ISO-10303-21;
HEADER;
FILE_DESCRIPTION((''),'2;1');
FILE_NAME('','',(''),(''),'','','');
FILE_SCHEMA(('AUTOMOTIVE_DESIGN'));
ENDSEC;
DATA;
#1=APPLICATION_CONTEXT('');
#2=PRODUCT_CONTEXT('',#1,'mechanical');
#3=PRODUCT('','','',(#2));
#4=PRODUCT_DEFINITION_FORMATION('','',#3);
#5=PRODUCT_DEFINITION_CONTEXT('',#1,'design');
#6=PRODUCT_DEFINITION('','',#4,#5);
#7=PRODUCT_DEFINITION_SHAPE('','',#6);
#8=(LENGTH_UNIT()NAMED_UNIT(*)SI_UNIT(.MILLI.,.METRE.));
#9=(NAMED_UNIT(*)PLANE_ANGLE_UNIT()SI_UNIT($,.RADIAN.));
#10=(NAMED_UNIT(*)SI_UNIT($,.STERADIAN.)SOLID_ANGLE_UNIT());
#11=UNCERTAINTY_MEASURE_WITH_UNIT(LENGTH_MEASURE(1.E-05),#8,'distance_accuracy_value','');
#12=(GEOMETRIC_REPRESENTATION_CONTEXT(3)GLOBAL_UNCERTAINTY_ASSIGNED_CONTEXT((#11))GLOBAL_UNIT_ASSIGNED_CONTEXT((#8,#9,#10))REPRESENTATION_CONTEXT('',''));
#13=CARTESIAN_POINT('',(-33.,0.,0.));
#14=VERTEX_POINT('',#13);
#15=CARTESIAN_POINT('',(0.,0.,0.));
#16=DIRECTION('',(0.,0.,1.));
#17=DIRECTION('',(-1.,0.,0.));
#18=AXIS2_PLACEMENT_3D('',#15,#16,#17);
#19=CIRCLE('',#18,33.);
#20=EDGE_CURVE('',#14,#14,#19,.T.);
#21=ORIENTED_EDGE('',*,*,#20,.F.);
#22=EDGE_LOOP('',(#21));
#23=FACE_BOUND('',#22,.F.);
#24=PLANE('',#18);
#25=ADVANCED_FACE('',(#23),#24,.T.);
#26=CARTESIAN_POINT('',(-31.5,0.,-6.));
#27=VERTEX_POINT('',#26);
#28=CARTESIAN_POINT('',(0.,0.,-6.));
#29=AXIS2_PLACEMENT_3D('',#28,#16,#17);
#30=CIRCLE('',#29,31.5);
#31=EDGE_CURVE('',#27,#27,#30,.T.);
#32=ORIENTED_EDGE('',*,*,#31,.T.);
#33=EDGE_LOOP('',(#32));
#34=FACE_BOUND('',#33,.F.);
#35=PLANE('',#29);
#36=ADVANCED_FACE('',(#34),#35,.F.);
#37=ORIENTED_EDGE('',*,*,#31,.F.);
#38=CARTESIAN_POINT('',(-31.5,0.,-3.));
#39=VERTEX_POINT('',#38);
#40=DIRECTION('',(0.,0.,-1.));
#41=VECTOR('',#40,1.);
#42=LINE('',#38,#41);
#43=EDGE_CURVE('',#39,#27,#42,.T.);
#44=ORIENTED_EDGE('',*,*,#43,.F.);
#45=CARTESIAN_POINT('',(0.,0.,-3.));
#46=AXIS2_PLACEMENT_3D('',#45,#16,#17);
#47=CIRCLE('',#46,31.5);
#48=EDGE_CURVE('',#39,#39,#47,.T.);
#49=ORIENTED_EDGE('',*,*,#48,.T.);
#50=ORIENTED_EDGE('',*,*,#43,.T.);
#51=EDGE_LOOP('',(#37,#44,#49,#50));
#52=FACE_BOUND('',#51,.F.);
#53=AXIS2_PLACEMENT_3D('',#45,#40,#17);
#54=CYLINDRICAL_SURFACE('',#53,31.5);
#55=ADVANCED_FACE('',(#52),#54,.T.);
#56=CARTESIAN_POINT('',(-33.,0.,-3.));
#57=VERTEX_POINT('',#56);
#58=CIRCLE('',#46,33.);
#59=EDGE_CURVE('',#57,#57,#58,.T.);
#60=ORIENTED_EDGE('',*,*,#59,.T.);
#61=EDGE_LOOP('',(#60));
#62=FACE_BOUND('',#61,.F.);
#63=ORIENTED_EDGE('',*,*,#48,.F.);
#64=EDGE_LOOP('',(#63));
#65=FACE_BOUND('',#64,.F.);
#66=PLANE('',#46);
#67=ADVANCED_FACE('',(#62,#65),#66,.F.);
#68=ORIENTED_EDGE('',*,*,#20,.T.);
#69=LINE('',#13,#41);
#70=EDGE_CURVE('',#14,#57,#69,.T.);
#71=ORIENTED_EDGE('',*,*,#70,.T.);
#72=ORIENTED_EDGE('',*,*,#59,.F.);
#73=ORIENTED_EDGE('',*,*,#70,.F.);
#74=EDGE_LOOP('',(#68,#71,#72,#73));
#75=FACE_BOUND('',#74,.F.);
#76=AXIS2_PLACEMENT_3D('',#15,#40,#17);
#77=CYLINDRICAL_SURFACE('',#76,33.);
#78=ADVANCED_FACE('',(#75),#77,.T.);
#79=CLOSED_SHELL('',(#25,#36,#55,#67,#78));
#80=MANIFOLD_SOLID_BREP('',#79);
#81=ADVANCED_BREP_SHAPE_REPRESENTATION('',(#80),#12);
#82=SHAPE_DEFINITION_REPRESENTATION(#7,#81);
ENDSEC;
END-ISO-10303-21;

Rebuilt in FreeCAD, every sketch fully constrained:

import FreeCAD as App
import Part
import Sketcher

doc = App.newDocument("Part")
body = doc.addObject("PartDesign::Body", "Body")

# Sketch on XZ plane
sketch1 = body.newObject("Sketcher::SketchObject", "Sketch")
sketch1.AttachmentSupport = (doc.getObject("XZ_Plane"), [""])
sketch1.MapMode = "FlatFace"
sketch1.addGeometry(Part.LineSegment(App.Vector(-33, 0, 0), App.Vector(0, 0, 0)), False)
sketch1.addGeometry(Part.LineSegment(App.Vector(0, 0, 0), App.Vector(0, -6, 0)), False)
sketch1.addGeometry(Part.LineSegment(App.Vector(0, -6, 0), App.Vector(-31.5, -6, 0)), False)
sketch1.addGeometry(Part.LineSegment(App.Vector(-31.5, -6, 0), App.Vector(-31.5, -3, 0)), False)
sketch1.addGeometry(Part.LineSegment(App.Vector(-31.5, -3, 0), App.Vector(-33, -3, 0)), False)
sketch1.addGeometry(Part.LineSegment(App.Vector(-33, -3, 0), App.Vector(-33, 0, 0)), False)
sketch1.addConstraint(Sketcher.Constraint("Coincident", 0, 2, 1, 1))
sketch1.addConstraint(Sketcher.Constraint("Coincident", 1, 2, 2, 1))
sketch1.addConstraint(Sketcher.Constraint("Coincident", 2, 2, 3, 1))
sketch1.addConstraint(Sketcher.Constraint("Coincident", 3, 2, 4, 1))
sketch1.addConstraint(Sketcher.Constraint("Coincident", 4, 2, 5, 1))
sketch1.addConstraint(Sketcher.Constraint("Coincident", 5, 2, 0, 1))
sketch1.addConstraint(Sketcher.Constraint("Horizontal", 0))
sketch1.addConstraint(Sketcher.Constraint("Vertical", 1))
sketch1.addConstraint(Sketcher.Constraint("Horizontal", 2))
sketch1.addConstraint(Sketcher.Constraint("Vertical", 3))
sketch1.addConstraint(Sketcher.Constraint("Horizontal", 4))
sketch1.addConstraint(Sketcher.Constraint("Vertical", 5))
sketch1.addConstraint(Sketcher.Constraint("Coincident", 0, 2, -1, 1))
sketch1.addConstraint(Sketcher.Constraint("Equal", 3, 5))
sketch1.addConstraint(Sketcher.Constraint("DistanceY", 3, 1, 3, 2, 3.0))
sketch1.addConstraint(Sketcher.Constraint("DistanceX", 0, 1, 0, 2, 33.0))
sketch1.addConstraint(Sketcher.Constraint("DistanceX", 2, 2, 2, 1, 31.5))
revolution = body.newObject("PartDesign::Revolution", "Revolution")
revolution.Profile = sketch1
revolution.ReferenceAxis = (sketch1, ["V_Axis"])
revolution.Angle = 360

doc.recompute()
